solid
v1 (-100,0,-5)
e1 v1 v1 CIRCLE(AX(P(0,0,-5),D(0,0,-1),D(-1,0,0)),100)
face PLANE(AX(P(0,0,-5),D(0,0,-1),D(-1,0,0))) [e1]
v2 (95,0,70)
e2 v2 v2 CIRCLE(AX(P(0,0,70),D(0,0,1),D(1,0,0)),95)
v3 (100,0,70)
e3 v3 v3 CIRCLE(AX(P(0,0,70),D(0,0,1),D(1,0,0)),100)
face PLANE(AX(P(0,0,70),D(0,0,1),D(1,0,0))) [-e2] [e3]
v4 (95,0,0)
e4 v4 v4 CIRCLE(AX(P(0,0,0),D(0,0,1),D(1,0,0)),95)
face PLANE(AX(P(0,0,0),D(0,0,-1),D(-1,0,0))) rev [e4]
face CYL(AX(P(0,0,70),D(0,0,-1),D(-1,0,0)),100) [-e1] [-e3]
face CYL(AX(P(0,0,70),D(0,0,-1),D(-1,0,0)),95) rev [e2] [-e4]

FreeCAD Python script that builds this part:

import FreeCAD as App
import Part
import Sketcher
from FreeCAD import Vector

doc = App.newDocument("Part")
body = doc.addObject("PartDesign::Body", "Body")

sketch1 = body.newObject("Sketcher::SketchObject", "Sketch")
sketch1.AttachmentSupport = (doc.getObject("XY_Plane"), [""])
sketch1.MapMode = "FlatFace"
sketch1.addGeometry(Part.Circle(Vector(0, 0, 0), Vector(0, 0, 1), 100), False)
sketch1.addGeometry(Part.Circle(Vector(0, 0, 0), Vector(0, 0, 1), 95), False)
sketch1.addConstraint(Sketcher.Constraint("Coincident", 0, 3, -1, 1))
sketch1.addConstraint(Sketcher.Constraint("Coincident", 1, 3, -1, 1))
sketch1.addConstraint(Sketcher.Constraint("Diameter", 0, 200.0))
sketch1.addConstraint(Sketcher.Constraint("Diameter", 1, 190.0))
pad1 = body.newObject("PartDesign::Pad", "Pad")
pad1.Profile = sketch1
pad1.Length = 70

sketch2 = body.newObject("Sketcher::SketchObject", "Sketch001")
sketch2.AttachmentSupport = (doc.getObject("XY_Plane"), [""])
sketch2.MapMode = "FlatFace"
sketch2.AttachmentOffset = App.Placement(Vector(0, 0, -5), App.Rotation())
sketch2.addGeometry(Part.Circle(Vector(0, 0, 0), Vector(0, 0, 1), 100), False)
sketch2.addConstraint(Sketcher.Constraint("Coincident", 0, 3, -1, 1))
sketch2.addConstraint(Sketcher.Constraint("Diameter", 0, 200.0))
pad2 = body.newObject("PartDesign::Pad", "Pad001")
pad2.Profile = sketch2
pad2.Length = 5

doc.recompute()
